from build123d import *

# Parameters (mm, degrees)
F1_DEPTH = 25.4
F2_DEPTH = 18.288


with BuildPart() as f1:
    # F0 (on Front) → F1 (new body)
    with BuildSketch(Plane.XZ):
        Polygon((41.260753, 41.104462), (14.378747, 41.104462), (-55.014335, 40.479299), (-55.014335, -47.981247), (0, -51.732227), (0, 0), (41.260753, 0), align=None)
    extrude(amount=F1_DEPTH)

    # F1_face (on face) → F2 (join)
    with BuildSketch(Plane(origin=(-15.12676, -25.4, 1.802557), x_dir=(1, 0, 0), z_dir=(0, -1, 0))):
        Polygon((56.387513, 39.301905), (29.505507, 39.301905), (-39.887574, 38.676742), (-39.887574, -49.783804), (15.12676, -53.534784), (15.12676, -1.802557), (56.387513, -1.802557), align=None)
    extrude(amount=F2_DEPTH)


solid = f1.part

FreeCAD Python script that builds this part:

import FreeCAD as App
import Part
import Sketcher

doc = App.newDocument("Part")
params = doc.addObject("Spreadsheet::Sheet", "Params")
for row, (alias, value) in enumerate([
    ("pad1_length", "1 in"),
    ("pad2_length", "0.72 in"),
], start=1):
    params.set(f"A{row}", alias)
    params.set(f"B{row}", "=" + value)
    params.setAlias(f"B{row}", alias)

body = doc.addObject("PartDesign::Body", "Body")

# Sketch on XZ plane
sketch1 = body.newObject("Sketcher::SketchObject", "Sketch")
sketch1.AttachmentSupport = (doc.getObject("XZ_Plane"), [""])
sketch1.MapMode = "FlatFace"
sketch1.addGeometry(Part.LineSegment(App.Vector(41.260753, 41.104462, 0), App.Vector(14.378747, 41.104462, 0)), False)
sketch1.addGeometry(Part.LineSegment(App.Vector(14.378747, 41.104462, 0), App.Vector(-55.014335, 40.479299, 0)), False)
sketch1.addGeometry(Part.LineSegment(App.Vector(-55.014335, 40.479299, 0), App.Vector(-55.014335, -47.981247, 0)), False)
sketch1.addGeometry(Part.LineSegment(App.Vector(-55.014335, -47.981247, 0), App.Vector(0, -51.732227, 0)), False)
sketch1.addGeometry(Part.LineSegment(App.Vector(0, -51.732227, 0), App.Vector(0, 0, 0)), False)
sketch1.addGeometry(Part.LineSegment(App.Vector(0, 0, 0), App.Vector(41.260753, 0, 0)), False)
sketch1.addGeometry(Part.LineSegment(App.Vector(41.260753, 0, 0), App.Vector(41.260753, 41.104462, 0)), False)
sketch1.addConstraint(Sketcher.Constraint("Coincident", 0, 2, 1, 1))
sketch1.addConstraint(Sketcher.Constraint("Coincident", 1, 2, 2, 1))
sketch1.addConstraint(Sketcher.Constraint("Coincident", 2, 2, 3, 1))
sketch1.addConstraint(Sketcher.Constraint("Coincident", 3, 2, 4, 1))
sketch1.addConstraint(Sketcher.Constraint("Coincident", 4, 2, 5, 1))
sketch1.addConstraint(Sketcher.Constraint("Coincident", 5, 2, 6, 1))
sketch1.addConstraint(Sketcher.Constraint("Coincident", 6, 2, 0, 1))
sketch1.addConstraint(Sketcher.Constraint("Horizontal", 0))
sketch1.addConstraint(Sketcher.Constraint("Vertical", 2))
sketch1.addConstraint(Sketcher.Constraint("Vertical", 4))
sketch1.addConstraint(Sketcher.Constraint("Horizontal", 5))
sketch1.addConstraint(Sketcher.Constraint("Vertical", 6))
sketch1.addConstraint(Sketcher.Constraint("Coincident", 4, 2, -1, 1))
sketch1.addConstraint(Sketcher.Constraint("DistanceY", 6, 1, 6, 2, 41.104462))
sketch1.addConstraint(Sketcher.Constraint("DistanceY", -1, 1, 1, 2, 40.479299))
sketch1.addConstraint(Sketcher.Constraint("Distance", 3, 55.142061))
sketch1.addConstraint(Sketcher.Constraint("DistanceX", 0, 2, 0, 1, 26.882006))
sketch1.addConstraint(Sketcher.Constraint("DistanceX", 5, 1, 5, 2, 41.260753))
sketch1.addConstraint(Sketcher.Constraint("DistanceY", 2, 2, 2, 1, 88.460546))
sketch1.addConstraint(Sketcher.Constraint("DistanceY", 4, 1, 4, 2, 51.732227))
pad1 = body.newObject("PartDesign::Pad", "Pad")
pad1.Profile = sketch1
pad1.setExpression("Length", "Params.pad1_length")

# Sketch on XZ plane
sketch2 = body.newObject("Sketcher::SketchObject", "Sketch001")
sketch2.AttachmentSupport = (doc.getObject("XZ_Plane"), [""])
sketch2.MapMode = "FlatFace"
sketch2.AttachmentOffset = App.Placement(App.Vector(0, 0, 1 * 25.4), App.Rotation())
sketch2.addGeometry(Part.LineSegment(App.Vector(41.260753, 41.104462, 0), App.Vector(14.378747, 41.104462, 0)), False)
sketch2.addGeometry(Part.LineSegment(App.Vector(14.378747, 41.104462, 0), App.Vector(-55.014334, 40.479299, 0)), False)
sketch2.addGeometry(Part.LineSegment(App.Vector(-55.014334, 40.479299, 0), App.Vector(-55.014334, -47.981247, 0)), False)
sketch2.addGeometry(Part.LineSegment(App.Vector(-55.014334, -47.981247, 0), App.Vector(0, -51.732227, 0)), False)
sketch2.addGeometry(Part.LineSegment(App.Vector(0, -51.732227, 0), App.Vector(0, 0, 0)), False)
sketch2.addGeometry(Part.LineSegment(App.Vector(0, 0, 0), App.Vector(41.260753, 0, 0)), False)
sketch2.addGeometry(Part.LineSegment(App.Vector(41.260753, 0, 0), App.Vector(41.260753, 41.104462, 0)), False)
sketch2.addConstraint(Sketcher.Constraint("Coincident", 0, 2, 1, 1))
sketch2.addConstraint(Sketcher.Constraint("Coincident", 1, 2, 2, 1))
sketch2.addConstraint(Sketcher.Constraint("Coincident", 2, 2, 3, 1))
sketch2.addConstraint(Sketcher.Constraint("Coincident", 3, 2, 4, 1))
sketch2.addConstraint(Sketcher.Constraint("Coincident", 4, 2, 5, 1))
sketch2.addConstraint(Sketcher.Constraint("Coincident", 5, 2, 6, 1))
sketch2.addConstraint(Sketcher.Constraint("Coincident", 6, 2, 0, 1))
sketch2.addConstraint(Sketcher.Constraint("Horizontal", 0))
sketch2.addConstraint(Sketcher.Constraint("Vertical", 2))
sketch2.addConstraint(Sketcher.Constraint("Vertical", 4))
sketch2.addConstraint(Sketcher.Constraint("Horizontal", 5))
sketch2.addConstraint(Sketcher.Constraint("Vertical", 6))
sketch2.addConstraint(Sketcher.Constraint("Coincident", 4, 2, -1, 1))
sketch2.addConstraint(Sketcher.Constraint("DistanceY", 6, 1, 6, 2, 41.104462))
sketch2.addConstraint(Sketcher.Constraint("DistanceY", -1, 1, 1, 2, 40.479299))
sketch2.addConstraint(Sketcher.Constraint("Distance", 3, 55.14206))
sketch2.addConstraint(Sketcher.Constraint("DistanceX", 0, 2, 0, 1, 26.882006))
sketch2.addConstraint(Sketcher.Constraint("DistanceX", 5, 1, 5, 2, 41.260753))
sketch2.addConstraint(Sketcher.Constraint("DistanceY", 2, 2, 2, 1, 88.460546))
sketch2.addConstraint(Sketcher.Constraint("DistanceY", 4, 1, 4, 2, 51.732227))
pad2 = body.newObject("PartDesign::Pad", "Pad001")
pad2.Profile = sketch2
pad2.setExpression("Length", "Params.pad2_length")

doc.recompute()
